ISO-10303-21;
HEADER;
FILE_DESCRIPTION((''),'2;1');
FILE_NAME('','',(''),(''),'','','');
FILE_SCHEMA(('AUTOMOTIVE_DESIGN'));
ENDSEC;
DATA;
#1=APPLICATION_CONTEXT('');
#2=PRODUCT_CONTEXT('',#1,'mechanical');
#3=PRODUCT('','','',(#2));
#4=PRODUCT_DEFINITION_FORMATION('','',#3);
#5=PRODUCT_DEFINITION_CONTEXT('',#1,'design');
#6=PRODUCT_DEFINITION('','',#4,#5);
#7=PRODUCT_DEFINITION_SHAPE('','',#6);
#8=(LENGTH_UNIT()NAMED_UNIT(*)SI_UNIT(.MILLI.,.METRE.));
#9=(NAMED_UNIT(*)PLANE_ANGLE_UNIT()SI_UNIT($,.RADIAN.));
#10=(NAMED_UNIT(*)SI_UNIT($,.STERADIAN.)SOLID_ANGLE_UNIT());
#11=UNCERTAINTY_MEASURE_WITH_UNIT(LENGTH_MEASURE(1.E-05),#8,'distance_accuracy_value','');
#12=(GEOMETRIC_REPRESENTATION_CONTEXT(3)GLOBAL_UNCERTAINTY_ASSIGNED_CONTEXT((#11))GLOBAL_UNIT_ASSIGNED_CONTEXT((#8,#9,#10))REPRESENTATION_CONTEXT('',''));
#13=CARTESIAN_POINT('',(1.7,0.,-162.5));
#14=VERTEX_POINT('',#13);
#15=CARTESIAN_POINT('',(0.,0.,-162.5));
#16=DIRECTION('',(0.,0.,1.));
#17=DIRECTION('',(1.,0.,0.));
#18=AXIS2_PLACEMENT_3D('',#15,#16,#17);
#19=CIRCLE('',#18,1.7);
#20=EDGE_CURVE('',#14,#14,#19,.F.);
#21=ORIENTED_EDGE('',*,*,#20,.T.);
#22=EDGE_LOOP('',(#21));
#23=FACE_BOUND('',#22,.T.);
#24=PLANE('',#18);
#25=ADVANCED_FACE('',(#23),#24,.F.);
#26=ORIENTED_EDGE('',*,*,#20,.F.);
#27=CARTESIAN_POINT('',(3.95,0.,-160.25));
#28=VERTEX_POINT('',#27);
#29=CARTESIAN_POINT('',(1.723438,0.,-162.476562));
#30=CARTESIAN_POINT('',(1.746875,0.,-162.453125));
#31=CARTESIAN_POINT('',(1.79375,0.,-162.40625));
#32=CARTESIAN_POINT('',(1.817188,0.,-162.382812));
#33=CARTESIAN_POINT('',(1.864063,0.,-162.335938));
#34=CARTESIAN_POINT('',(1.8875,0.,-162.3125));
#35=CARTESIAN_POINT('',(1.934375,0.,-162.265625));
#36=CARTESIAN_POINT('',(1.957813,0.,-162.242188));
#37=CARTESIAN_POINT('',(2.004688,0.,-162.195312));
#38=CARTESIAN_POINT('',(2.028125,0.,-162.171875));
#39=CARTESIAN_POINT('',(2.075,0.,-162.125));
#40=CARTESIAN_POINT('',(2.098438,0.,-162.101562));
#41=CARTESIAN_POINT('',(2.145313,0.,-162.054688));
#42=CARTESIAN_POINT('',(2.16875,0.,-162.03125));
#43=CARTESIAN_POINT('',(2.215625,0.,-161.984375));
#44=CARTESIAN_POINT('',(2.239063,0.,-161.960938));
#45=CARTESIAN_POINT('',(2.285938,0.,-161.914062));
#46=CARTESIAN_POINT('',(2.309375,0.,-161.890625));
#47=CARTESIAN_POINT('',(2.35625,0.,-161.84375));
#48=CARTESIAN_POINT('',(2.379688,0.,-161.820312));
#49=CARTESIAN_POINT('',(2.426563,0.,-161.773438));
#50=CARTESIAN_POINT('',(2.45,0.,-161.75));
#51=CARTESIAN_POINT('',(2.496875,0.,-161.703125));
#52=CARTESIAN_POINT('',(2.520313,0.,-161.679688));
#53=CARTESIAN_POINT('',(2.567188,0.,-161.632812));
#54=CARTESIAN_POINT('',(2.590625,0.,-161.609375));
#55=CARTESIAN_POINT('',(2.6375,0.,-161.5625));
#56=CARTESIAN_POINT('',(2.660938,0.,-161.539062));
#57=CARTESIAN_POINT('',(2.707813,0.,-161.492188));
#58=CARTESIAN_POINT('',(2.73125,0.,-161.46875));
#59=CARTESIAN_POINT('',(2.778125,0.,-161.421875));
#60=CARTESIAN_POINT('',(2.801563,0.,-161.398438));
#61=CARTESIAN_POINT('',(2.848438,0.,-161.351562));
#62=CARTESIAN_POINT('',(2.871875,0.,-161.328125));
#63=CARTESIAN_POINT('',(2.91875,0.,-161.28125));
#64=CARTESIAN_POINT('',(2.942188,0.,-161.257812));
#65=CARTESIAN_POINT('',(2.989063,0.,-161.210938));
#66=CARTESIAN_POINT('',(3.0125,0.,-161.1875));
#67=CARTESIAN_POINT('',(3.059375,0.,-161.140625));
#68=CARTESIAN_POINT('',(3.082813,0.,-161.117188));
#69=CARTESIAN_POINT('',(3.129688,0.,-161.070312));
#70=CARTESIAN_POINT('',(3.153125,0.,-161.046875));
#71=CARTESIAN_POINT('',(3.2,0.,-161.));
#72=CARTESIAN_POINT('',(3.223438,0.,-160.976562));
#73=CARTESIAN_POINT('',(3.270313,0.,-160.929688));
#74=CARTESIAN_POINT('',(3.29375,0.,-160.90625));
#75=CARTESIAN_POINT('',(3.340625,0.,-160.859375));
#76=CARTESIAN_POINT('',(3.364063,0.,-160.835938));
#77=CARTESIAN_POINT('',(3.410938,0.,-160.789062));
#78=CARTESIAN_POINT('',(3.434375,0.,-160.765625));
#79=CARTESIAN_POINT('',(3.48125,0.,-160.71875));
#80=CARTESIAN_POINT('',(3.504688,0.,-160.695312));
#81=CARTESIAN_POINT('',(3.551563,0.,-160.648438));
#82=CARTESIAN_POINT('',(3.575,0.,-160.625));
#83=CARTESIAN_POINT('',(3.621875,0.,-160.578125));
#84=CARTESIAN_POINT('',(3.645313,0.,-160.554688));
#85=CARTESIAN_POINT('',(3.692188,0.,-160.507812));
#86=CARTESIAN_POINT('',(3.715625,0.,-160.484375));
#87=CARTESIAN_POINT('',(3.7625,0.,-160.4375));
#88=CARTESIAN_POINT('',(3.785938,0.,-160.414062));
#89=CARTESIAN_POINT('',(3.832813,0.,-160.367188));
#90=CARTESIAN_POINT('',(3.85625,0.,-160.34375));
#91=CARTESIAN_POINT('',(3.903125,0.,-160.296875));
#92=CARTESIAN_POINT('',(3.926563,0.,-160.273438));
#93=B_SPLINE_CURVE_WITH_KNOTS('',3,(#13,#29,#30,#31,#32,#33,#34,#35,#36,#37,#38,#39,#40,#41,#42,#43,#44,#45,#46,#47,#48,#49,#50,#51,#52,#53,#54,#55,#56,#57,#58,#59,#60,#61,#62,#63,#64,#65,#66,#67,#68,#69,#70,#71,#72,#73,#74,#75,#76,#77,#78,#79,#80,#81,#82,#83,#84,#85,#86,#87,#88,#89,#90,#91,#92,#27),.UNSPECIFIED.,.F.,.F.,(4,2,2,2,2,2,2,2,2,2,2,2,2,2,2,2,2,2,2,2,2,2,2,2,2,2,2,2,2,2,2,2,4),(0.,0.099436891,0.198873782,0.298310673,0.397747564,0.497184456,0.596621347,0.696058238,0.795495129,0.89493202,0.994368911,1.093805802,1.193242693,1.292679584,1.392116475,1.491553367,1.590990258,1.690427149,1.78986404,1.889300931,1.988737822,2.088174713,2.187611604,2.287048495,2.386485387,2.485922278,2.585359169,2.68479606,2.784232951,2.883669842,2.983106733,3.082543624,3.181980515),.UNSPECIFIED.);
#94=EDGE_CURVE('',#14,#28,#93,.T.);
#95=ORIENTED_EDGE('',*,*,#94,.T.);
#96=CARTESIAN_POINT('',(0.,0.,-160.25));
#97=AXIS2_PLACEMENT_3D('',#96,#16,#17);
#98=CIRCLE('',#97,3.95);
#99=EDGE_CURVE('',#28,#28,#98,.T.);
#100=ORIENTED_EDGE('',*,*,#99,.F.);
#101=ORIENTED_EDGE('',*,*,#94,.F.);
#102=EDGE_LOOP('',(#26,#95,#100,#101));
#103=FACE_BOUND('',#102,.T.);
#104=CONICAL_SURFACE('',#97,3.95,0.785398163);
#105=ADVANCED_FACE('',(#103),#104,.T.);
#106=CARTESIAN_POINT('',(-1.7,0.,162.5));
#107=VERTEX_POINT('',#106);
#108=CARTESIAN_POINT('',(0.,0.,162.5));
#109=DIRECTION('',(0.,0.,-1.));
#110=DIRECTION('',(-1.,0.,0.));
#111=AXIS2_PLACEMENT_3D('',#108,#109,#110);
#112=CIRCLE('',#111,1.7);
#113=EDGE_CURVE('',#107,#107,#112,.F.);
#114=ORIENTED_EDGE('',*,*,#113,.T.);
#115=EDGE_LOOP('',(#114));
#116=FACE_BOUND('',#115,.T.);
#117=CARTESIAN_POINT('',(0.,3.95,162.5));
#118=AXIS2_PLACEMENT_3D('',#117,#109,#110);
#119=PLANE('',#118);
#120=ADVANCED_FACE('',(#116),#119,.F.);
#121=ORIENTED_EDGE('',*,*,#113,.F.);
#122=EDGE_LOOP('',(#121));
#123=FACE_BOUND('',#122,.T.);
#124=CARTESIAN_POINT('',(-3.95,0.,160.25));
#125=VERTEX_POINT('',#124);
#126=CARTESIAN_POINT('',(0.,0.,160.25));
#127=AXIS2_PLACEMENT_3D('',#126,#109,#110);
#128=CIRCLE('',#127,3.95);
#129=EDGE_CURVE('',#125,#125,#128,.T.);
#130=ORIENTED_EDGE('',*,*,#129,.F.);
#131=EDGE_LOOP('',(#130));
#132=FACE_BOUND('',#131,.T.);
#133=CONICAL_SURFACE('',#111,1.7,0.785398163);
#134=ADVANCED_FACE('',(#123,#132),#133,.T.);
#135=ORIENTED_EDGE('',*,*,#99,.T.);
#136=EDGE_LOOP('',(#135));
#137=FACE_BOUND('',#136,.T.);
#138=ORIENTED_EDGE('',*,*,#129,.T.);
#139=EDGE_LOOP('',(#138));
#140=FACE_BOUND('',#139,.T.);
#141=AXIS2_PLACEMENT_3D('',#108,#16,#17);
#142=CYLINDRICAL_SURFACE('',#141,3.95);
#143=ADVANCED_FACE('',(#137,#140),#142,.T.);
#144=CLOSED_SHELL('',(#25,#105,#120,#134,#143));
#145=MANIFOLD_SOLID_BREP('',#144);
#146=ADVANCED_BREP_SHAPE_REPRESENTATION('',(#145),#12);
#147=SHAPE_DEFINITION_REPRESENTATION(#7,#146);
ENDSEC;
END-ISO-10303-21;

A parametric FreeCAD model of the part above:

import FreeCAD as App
import Part
import Sketcher
from FreeCAD import Vector
Q = App.Units.Quantity


def edges_at(feature, points):
    """Names of the edges that pass closest to the given points."""
    edges = feature.Shape.Edges
    near = lambda p: min(range(len(edges)), key=lambda i: edges[i].distToShape(Part.Vertex(*p))[0])
    return sorted({f"Edge{near(p) + 1}" for p in points})

doc = App.newDocument("Part")
params = doc.addObject("Spreadsheet::Sheet", "Params")
for row, (alias, value) in enumerate([
    ("sketch1_height", "325 mm"),
    ("sketch1_width", "3.95 mm"),
    ("revolution_angle", "360 deg"),
    ("chamfer_size", "2.25 mm"),
], start=1):
    params.set(f"A{row}", alias)
    params.set(f"B{row}", "=" + value)
    params.setAlias(f"B{row}", alias)

body = doc.addObject("PartDesign::Body", "Body")

sketch1 = body.newObject("Sketcher::SketchObject", "Sketch")
sketch1.AttachmentSupport = (doc.getObject("YZ_Plane"), [""])
sketch1.MapMode = "FlatFace"
sketch1.addGeometry([
    Part.LineSegment(Vector(4, 162.5, 0), Vector(0, 162.5, 0)),
    Part.LineSegment(Vector(0, 162.5, 0), Vector(0, -162.5, 0)),
    Part.LineSegment(Vector(0, -162.5, 0), Vector(4, -162.5, 0)),
    Part.LineSegment(Vector(4, -162.5, 0), Vector(4, 162.5, 0)),
], False)
sketch1.addConstraint([
    Sketcher.Constraint("Coincident", 0, 2, 1, 1),
    Sketcher.Constraint("Coincident", 1, 2, 2, 1),
    Sketcher.Constraint("Coincident", 2, 2, 3, 1),
    Sketcher.Constraint("Coincident", 3, 2, 0, 1),
    Sketcher.Constraint("Horizontal", 0),
    Sketcher.Constraint("Vertical", 1),
    Sketcher.Constraint("Horizontal", 2),
    Sketcher.Constraint("Vertical", 3),
    Sketcher.Constraint("Symmetric", 0, 2, 1, 2, -1, 1),
    Sketcher.Constraint("DistanceY", 1, 2, 1, 1, Q("325 mm")),
    Sketcher.Constraint("DistanceX", 0, 2, 0, 1, Q("3.95 mm")),
])
sketch1.setExpression("Constraints[9]", "Params.sketch1_height")
sketch1.setExpression("Constraints[10]", "Params.sketch1_width")
revolution = body.newObject("PartDesign::Revolution", "Revolution")
revolution.Profile = sketch1
revolution.ReferenceAxis = (sketch1, ["V_Axis"])
revolution.setExpression("Angle", "Params.revolution_angle")
doc.recompute()

chamfer = body.newObject("PartDesign::Chamfer", "Chamfer")
chamfer.Base = (revolution, edges_at(revolution, [(-3.95, 0, -162.5), (-3.95, 0, 162.5)]))
chamfer.setExpression("Size", "Params.chamfer_size")

doc.recompute()
